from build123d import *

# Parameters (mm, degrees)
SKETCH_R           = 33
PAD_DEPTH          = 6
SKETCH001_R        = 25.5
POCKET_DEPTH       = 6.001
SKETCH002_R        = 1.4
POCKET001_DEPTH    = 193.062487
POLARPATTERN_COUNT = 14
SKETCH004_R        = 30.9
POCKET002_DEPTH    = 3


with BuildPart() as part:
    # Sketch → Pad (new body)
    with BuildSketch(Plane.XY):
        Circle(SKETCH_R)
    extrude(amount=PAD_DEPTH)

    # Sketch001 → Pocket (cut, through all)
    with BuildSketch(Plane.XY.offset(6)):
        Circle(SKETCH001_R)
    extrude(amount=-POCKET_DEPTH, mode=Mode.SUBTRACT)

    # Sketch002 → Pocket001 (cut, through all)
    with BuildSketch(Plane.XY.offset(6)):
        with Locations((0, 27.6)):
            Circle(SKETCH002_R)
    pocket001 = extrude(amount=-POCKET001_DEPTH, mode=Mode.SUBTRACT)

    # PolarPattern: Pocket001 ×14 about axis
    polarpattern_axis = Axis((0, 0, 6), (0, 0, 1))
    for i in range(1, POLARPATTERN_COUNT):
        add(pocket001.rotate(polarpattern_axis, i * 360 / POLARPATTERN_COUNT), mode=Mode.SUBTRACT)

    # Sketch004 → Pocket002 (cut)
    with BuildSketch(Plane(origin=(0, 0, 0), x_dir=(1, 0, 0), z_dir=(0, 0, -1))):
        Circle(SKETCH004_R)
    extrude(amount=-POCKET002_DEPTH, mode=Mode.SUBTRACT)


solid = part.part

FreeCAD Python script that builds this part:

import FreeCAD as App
import Part
import Sketcher
from FreeCAD import Vector
Q = App.Units.Quantity

doc = App.newDocument("Part")
body = doc.addObject("PartDesign::Body", "Body")

sketch1 = doc.addObject("Sketcher::SketchObject", "Sketch")
body.addObject(sketch1)
sketch1.AttachmentSupport = (doc.XY_Plane, [""])
sketch1.MapMode = "FlatFace"
sketch1.addGeometry(Part.Circle(Vector(0, 0, 0), Vector(0, 0, 1), 33), False)
sketch1.addConstraint([
    Sketcher.Constraint("Coincident", 0, 3, -1, 1),
    Sketcher.Constraint("Diameter", 0, Q("66 mm")),
])
pad1 = doc.addObject("PartDesign::Pad", "Pad")
body.addObject(pad1)
pad1.Profile = sketch1
pad1.Length = 6

sketch2 = doc.addObject("Sketcher::SketchObject", "Sketch001")
body.addObject(sketch2)
sketch2.AttachmentSupport = (doc.XY_Plane, [""])
sketch2.MapMode = "FlatFace"
sketch2.AttachmentOffset = App.Placement(Vector(0, 0, 6), App.Rotation())
sketch2.addGeometry(Part.Circle(Vector(0, 0, 0), Vector(0, 0, 1), 26), False)
sketch2.addConstraint([
    Sketcher.Constraint("Coincident", 0, 3, -1, 1),
    Sketcher.Constraint("Diameter", 0, Q("51 mm")),
])
pocket1 = doc.addObject("PartDesign::Pocket", "Pocket")
body.addObject(pocket1)
pocket1.Profile = sketch2
pocket1.Type = "ThroughAll"

sketch3 = doc.addObject("Sketcher::SketchObject", "Sketch002")
body.addObject(sketch3)
sketch3.AttachmentSupport = (doc.XY_Plane, [""])
sketch3.MapMode = "FlatFace"
sketch3.AttachmentOffset = App.Placement(Vector(0, 0, 6), App.Rotation())
sketch3.addGeometry(Part.Circle(Vector(0, 27.6, 0), Vector(0, 0, 1), 1.4), False)
sketch3.addConstraint([
    Sketcher.Constraint("PointOnObject", 0, 3, -2),
    Sketcher.Constraint("Diameter", 0, Q("2.8 mm")),
    Sketcher.Constraint("DistanceY", -1, 1, 0, 3, Q("27.6 mm")),
])
pocket2 = doc.addObject("PartDesign::Pocket", "Pocket001")
body.addObject(pocket2)
pocket2.Profile = sketch3
pocket2.Type = "ThroughAll"
doc.recompute()

polarpattern = doc.addObject("PartDesign::PolarPattern", "PolarPattern")
body.addObject(polarpattern)
polarpattern.Originals = [pocket2]
polarpattern.Axis = (doc.Z_Axis, [""])
polarpattern.Angle = 360
polarpattern.Occurrences = 14
body.Tip = polarpattern

sketch4 = doc.addObject("Sketcher::SketchObject", "Sketch003")
body.addObject(sketch4)
sketch4.AttachmentSupport = (doc.XY_Plane, [""])
sketch4.MapMode = "FlatFace"
sketch4.addGeometry(Part.Circle(Vector(0, 0, 0), Vector(0, 0, 1), 31), False)
sketch4.addConstraint([
    Sketcher.Constraint("Coincident", 0, 3, -1, 1),
    Sketcher.Constraint("Diameter", 0, Q("61.8 mm")),
])
pocket3 = doc.addObject("PartDesign::Pocket", "Pocket002")
body.addObject(pocket3)
pocket3.Profile = sketch4
pocket3.Length = 3
pocket3.Reversed = True

doc.recompute()
